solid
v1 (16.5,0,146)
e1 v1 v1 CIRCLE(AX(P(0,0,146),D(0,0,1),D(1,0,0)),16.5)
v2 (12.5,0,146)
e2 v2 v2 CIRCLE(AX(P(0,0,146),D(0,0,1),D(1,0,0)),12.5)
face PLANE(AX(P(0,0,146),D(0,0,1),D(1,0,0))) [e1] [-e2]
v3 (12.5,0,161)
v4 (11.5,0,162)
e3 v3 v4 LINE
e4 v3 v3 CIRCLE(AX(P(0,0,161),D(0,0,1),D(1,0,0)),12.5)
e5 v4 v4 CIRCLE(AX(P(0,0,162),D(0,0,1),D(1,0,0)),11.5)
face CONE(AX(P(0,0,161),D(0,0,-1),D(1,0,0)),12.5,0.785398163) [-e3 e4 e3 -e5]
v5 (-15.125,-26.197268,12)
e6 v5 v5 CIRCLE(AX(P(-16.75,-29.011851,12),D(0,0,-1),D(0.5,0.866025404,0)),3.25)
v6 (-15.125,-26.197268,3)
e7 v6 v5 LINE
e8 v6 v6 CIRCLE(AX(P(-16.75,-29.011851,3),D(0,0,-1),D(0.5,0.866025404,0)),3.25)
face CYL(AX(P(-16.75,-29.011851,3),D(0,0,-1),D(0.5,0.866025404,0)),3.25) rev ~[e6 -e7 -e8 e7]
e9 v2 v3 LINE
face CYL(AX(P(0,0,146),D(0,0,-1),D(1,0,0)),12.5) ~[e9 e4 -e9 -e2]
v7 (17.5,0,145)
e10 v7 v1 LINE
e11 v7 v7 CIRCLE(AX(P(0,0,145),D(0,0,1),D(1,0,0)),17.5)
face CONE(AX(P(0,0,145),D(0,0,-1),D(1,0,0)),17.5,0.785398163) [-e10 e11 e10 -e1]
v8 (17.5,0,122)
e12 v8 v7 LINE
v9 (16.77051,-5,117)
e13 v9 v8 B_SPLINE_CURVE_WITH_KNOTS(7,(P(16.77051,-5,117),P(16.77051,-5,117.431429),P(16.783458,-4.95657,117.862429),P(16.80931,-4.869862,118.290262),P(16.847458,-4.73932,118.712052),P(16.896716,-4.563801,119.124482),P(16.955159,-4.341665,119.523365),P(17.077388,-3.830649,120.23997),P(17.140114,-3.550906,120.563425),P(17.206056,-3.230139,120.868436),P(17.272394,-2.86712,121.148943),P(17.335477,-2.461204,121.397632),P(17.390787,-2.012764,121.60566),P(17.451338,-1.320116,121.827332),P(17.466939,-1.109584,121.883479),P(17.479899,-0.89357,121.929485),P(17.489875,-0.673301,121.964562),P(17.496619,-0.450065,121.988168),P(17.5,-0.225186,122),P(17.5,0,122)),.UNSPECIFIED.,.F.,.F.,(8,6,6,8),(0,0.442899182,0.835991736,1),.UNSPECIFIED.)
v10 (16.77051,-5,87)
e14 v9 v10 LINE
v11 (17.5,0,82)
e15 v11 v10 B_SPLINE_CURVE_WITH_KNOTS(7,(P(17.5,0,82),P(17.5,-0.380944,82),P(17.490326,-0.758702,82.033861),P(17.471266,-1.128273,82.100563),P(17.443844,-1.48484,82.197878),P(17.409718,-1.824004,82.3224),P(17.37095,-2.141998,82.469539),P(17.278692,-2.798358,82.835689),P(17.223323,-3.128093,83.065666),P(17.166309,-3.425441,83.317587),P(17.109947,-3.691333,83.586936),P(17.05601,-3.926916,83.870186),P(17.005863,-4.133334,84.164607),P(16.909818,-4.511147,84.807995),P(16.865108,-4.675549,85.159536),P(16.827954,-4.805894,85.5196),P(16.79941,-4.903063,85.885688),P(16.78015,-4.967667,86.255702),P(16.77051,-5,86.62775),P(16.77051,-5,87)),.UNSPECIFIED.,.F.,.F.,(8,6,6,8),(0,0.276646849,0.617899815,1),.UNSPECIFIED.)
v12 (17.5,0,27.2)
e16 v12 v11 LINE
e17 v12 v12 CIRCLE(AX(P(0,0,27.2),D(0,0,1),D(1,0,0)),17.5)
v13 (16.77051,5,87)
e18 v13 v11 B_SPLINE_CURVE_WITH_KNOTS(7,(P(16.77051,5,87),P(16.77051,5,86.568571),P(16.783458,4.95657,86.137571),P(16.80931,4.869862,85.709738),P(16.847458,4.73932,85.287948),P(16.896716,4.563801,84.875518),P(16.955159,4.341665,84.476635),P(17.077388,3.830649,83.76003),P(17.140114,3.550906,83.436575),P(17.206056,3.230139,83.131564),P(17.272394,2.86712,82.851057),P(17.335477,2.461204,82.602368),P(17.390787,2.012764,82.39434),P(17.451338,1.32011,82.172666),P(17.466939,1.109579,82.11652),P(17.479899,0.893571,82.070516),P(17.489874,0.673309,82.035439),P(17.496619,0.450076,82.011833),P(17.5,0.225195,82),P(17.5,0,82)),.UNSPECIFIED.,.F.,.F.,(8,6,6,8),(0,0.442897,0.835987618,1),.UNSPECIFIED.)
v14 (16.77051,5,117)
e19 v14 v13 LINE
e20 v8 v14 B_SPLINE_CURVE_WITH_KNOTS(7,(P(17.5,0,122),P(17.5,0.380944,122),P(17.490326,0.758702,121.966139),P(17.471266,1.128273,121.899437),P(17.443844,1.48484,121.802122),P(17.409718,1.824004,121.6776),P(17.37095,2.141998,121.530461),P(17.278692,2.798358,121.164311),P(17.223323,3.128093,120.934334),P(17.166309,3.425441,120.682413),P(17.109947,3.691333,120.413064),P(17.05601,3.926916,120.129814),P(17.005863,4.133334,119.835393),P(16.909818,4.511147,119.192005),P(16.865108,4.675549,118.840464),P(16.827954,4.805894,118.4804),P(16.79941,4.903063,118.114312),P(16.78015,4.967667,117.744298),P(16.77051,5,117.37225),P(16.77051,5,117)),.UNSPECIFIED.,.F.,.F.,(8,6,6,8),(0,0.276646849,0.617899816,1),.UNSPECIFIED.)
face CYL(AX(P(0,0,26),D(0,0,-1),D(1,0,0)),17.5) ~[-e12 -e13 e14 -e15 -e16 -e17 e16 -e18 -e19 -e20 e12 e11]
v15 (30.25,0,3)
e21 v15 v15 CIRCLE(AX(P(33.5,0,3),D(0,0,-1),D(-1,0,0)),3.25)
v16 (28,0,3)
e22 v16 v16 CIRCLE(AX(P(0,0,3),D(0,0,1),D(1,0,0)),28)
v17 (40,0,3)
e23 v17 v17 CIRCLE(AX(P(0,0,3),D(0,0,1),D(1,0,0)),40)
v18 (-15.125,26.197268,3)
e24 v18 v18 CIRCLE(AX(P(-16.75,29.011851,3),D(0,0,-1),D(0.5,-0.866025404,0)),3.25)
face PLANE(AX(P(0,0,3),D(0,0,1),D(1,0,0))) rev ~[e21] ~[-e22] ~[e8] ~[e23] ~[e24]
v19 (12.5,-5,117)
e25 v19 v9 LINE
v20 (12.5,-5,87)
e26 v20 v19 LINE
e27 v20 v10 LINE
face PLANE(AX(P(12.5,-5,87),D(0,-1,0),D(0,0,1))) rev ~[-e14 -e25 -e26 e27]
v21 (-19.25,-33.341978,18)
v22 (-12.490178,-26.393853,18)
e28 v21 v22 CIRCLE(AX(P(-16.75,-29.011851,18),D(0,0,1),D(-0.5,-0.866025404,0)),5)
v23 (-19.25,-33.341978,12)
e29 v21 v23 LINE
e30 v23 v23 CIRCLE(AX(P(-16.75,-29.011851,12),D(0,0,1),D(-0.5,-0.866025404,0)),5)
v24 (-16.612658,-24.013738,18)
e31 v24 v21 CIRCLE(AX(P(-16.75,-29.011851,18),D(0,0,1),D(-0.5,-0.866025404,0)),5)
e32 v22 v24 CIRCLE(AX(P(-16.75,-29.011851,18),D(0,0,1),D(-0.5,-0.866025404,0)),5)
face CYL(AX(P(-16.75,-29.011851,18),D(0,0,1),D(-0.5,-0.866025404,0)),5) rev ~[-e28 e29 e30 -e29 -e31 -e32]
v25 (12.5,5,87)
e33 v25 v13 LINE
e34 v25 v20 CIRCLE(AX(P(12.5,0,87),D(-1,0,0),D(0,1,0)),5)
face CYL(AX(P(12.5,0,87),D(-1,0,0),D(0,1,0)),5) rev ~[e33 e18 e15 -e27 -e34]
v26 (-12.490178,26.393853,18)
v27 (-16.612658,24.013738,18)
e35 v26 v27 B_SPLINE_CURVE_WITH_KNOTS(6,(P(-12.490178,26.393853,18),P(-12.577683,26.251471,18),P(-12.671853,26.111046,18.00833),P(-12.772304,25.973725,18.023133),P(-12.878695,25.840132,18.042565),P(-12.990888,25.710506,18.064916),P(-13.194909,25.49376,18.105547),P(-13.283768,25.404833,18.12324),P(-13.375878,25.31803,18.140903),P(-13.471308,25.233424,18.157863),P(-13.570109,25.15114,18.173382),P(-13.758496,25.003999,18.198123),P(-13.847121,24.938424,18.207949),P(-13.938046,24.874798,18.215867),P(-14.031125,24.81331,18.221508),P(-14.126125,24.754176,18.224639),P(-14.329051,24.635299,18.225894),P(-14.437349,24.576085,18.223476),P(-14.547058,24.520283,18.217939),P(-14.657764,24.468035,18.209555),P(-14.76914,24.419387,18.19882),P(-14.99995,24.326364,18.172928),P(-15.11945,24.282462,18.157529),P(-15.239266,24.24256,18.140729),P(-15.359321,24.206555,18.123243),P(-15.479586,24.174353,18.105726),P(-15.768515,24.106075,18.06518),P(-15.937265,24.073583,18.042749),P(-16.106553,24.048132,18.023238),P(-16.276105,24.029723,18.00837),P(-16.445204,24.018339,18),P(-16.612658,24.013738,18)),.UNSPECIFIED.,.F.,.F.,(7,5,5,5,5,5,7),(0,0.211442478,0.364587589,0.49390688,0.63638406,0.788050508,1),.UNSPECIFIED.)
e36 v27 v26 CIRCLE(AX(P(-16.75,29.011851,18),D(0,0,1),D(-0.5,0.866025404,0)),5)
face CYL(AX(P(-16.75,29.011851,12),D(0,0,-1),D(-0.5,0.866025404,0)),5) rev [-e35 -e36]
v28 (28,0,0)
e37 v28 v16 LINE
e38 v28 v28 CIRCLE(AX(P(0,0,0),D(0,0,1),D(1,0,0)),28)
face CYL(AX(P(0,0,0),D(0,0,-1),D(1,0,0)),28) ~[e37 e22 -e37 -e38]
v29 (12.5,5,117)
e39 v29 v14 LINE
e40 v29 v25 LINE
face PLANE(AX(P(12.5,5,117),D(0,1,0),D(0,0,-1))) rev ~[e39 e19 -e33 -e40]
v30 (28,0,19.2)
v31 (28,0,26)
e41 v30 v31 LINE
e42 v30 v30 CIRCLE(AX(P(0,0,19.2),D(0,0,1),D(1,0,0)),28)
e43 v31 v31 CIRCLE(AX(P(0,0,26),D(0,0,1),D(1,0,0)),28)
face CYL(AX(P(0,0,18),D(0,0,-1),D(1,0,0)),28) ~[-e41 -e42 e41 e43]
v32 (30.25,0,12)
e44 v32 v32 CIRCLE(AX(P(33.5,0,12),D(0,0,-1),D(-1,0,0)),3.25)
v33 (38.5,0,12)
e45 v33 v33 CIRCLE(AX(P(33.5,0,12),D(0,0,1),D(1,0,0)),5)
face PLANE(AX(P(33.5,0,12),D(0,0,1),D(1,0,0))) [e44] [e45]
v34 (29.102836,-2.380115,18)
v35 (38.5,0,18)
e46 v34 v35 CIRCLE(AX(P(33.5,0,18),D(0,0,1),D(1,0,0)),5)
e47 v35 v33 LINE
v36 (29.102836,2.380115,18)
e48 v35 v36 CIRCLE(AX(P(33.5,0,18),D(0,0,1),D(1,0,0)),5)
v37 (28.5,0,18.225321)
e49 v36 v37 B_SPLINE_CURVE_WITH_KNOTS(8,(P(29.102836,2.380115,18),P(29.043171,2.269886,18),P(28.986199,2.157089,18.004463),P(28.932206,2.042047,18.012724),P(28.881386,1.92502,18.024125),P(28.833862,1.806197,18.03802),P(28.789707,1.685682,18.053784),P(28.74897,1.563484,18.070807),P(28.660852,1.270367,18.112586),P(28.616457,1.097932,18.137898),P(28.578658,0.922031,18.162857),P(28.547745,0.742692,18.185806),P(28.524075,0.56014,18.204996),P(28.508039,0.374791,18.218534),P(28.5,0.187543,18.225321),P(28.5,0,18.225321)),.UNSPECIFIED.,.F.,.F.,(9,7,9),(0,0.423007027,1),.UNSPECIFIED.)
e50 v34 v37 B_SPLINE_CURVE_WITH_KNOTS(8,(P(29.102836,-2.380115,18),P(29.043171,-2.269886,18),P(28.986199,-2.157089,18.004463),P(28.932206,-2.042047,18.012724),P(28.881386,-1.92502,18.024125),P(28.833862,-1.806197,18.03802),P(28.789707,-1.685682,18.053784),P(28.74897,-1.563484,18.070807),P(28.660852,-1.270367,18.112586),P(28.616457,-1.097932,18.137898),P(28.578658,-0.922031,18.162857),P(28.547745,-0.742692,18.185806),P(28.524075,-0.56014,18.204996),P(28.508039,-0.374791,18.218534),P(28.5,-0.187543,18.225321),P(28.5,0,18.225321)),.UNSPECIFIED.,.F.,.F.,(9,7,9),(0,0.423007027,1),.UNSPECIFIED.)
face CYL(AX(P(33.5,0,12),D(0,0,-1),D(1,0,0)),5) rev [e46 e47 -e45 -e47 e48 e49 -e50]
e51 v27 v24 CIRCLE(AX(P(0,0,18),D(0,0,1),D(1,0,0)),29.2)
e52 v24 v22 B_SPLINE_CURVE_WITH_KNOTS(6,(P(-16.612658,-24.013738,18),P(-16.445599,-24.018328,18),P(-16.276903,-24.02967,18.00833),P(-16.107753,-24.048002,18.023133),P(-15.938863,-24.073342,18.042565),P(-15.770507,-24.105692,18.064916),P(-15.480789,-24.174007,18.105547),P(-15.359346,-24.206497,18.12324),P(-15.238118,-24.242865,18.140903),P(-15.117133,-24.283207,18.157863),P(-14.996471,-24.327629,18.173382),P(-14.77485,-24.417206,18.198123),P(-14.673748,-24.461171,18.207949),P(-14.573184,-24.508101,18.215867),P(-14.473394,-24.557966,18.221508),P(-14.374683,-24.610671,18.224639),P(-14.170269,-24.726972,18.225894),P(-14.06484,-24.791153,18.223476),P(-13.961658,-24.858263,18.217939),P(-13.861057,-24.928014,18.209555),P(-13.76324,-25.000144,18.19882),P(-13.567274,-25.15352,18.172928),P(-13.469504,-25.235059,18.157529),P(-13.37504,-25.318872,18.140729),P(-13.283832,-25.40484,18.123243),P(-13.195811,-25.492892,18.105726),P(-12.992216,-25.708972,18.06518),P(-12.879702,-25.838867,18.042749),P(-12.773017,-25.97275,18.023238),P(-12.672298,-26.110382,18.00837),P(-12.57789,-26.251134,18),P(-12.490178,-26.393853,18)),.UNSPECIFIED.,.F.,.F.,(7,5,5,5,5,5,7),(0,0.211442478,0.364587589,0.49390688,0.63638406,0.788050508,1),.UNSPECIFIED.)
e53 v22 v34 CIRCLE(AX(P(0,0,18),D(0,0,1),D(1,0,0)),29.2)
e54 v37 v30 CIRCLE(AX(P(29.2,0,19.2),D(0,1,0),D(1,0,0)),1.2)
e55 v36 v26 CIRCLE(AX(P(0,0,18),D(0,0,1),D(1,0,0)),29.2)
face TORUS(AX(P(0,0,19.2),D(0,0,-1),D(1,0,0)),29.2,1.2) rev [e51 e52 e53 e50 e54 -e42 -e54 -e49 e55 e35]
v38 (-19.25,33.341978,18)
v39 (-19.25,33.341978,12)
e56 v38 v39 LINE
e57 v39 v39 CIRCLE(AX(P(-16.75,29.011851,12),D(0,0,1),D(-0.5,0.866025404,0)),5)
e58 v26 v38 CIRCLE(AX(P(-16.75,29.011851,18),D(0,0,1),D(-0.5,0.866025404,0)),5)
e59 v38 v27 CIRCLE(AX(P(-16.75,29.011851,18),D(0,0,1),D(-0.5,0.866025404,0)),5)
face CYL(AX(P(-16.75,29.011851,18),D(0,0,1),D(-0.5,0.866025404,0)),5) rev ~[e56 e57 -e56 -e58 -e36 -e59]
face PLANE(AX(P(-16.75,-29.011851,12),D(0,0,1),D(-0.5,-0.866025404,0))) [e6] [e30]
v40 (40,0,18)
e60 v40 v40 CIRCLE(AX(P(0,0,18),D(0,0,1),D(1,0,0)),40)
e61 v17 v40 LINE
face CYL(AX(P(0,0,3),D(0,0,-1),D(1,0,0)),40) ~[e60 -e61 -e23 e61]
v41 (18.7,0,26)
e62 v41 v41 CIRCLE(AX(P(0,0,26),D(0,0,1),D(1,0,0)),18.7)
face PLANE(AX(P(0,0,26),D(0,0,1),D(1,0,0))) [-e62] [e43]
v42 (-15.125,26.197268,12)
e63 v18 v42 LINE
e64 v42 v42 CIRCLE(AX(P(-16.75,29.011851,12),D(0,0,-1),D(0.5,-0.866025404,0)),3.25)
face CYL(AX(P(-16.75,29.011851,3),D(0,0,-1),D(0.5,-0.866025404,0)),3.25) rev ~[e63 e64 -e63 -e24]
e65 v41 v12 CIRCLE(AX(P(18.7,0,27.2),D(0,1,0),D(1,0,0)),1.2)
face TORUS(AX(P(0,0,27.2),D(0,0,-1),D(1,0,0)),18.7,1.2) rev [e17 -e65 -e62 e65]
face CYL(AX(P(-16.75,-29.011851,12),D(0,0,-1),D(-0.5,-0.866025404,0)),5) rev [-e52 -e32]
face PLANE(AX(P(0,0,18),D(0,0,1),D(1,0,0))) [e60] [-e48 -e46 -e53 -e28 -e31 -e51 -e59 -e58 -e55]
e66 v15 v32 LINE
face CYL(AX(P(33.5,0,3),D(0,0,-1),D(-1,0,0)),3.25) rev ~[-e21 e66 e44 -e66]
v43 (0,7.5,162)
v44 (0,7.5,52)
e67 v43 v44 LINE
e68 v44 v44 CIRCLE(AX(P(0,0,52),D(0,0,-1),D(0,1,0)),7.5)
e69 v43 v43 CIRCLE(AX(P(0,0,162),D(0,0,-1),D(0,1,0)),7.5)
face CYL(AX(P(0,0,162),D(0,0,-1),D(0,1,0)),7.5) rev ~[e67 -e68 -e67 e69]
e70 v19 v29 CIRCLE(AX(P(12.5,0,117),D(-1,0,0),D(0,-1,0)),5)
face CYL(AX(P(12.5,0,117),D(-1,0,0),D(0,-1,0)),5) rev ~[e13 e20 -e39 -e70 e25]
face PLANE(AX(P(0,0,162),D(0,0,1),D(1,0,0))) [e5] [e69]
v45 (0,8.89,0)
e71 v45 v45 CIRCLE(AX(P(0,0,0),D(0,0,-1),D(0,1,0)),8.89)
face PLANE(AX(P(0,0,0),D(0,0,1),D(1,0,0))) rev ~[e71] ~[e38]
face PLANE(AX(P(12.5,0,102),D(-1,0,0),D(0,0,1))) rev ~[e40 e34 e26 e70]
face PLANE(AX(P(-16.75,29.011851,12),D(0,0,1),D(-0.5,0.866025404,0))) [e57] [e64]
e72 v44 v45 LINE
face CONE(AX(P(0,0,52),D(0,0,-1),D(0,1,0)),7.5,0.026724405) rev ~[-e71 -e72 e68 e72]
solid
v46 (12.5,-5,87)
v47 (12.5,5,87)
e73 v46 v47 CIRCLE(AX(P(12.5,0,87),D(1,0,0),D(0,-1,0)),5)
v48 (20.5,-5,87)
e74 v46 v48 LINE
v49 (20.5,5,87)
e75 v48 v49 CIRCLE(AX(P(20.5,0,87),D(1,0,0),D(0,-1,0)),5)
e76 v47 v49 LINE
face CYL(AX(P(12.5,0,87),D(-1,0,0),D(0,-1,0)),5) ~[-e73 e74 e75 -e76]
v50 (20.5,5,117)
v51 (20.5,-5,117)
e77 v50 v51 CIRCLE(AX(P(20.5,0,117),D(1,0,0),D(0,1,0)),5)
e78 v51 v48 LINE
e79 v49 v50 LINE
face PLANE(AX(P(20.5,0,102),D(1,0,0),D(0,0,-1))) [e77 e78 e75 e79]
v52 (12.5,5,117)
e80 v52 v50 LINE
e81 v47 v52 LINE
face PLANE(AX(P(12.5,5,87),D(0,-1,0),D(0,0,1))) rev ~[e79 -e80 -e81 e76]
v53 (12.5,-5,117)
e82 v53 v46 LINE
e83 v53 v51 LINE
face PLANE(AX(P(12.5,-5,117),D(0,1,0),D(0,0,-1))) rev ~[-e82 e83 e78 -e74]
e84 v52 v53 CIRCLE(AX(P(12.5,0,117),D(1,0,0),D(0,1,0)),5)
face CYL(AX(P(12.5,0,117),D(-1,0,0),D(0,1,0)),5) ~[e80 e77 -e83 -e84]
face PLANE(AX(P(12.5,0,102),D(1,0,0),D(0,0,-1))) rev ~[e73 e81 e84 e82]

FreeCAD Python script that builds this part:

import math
import FreeCAD as App
import Part
import Sketcher
from FreeCAD import Vector


def edges_at(feature, points):
    """Names of the edges that pass closest to the given points."""
    edges = feature.Shape.Edges
    near = lambda p: min(range(len(edges)), key=lambda i: edges[i].distToShape(Part.Vertex(*p))[0])
    return sorted({f"Edge{near(p) + 1}" for p in points})


def add_polygon(sketch, points):
    """Adds a closed chain of lines whose ends are joined by coincident constraints."""
    first, n = sketch.GeometryCount, len(points)
    for a, b in zip(points, points[1:] + points[:1]):
        sketch.addGeometry(Part.LineSegment(App.Vector(*a, 0), App.Vector(*b, 0)), False)
    for i in range(n):
        sketch.addConstraint(Sketcher.Constraint("Coincident", first + i, 2, first + (i + 1) % n, 1))

doc = App.newDocument("Part")
body = doc.addObject("PartDesign::Body", "Body")

sketch1 = body.newObject("Sketcher::SketchObject", "Sketch")
sketch1.AttachmentSupport = (doc.getObject("XY_Plane"), [""])
sketch1.MapMode = "FlatFace"
sketch1.addGeometry(Part.Circle(Vector(0, 0, 0), Vector(0, 0, 1), 28), False)
sketch1.addConstraint([
    Sketcher.Constraint("Coincident", 0, 3, -1, 1),
    Sketcher.Constraint("Diameter", 0, 56.0),
])
pad1 = body.newObject("PartDesign::Pad", "Pad")
pad1.Profile = sketch1
pad1.Length = 3

sketch2 = body.newObject("Sketcher::SketchObject", "Sketch001")
sketch2.AttachmentSupport = (doc.getObject("XY_Plane"), [""])
sketch2.MapMode = "FlatFace"
sketch2.AttachmentOffset = App.Placement(Vector(0, 0, 3), App.Rotation())
sketch2.addGeometry(Part.Circle(Vector(0, 0, 0), Vector(0, 0, 1), 40), False)
sketch2.addConstraint([
    Sketcher.Constraint("Coincident", 0, 3, -1, 1),
    Sketcher.Constraint("Diameter", 0, 80.0),
])
pad2 = body.newObject("PartDesign::Pad", "Pad001")
pad2.Profile = sketch2
pad2.Length = 15

sketch3 = body.newObject("Sketcher::SketchObject", "Sketch002")
sketch3.AttachmentSupport = (doc.getObject("XY_Plane"), [""])
sketch3.MapMode = "FlatFace"
sketch3.AttachmentOffset = App.Placement(Vector(0, 0, 18), App.Rotation())
sketch3.addGeometry(Part.Circle(Vector(0, 0, 0), Vector(0, 0, 1), 28), False)
sketch3.addConstraint([
    Sketcher.Constraint("Coincident", 0, 3, -1, 1),
    Sketcher.Constraint("Diameter", 0, 56.0),
])
pad3 = body.newObject("PartDesign::Pad", "Pad002")
pad3.Profile = sketch3
pad3.Length = 8

sketch4 = body.newObject("Sketcher::SketchObject", "Sketch003")
sketch4.AttachmentSupport = (doc.getObject("XY_Plane"), [""])
sketch4.MapMode = "FlatFace"
sketch4.AttachmentOffset = App.Placement(Vector(0, 0, 26), App.Rotation())
sketch4.addGeometry(Part.Circle(Vector(0, 0, 0), Vector(0, 0, 1), 17.5), False)
sketch4.addConstraint([
    Sketcher.Constraint("Coincident", 0, 3, -1, 1),
    Sketcher.Constraint("Diameter", 0, 35.0),
])
pad4 = body.newObject("PartDesign::Pad", "Pad003")
pad4.Profile = sketch4
pad4.Length = 120

sketch5 = body.newObject("Sketcher::SketchObject", "Sketch004")
sketch5.AttachmentSupport = (doc.getObject("XY_Plane"), [""])
sketch5.MapMode = "FlatFace"
sketch5.AttachmentOffset = App.Placement(Vector(0, 0, 146), App.Rotation())
sketch5.addGeometry(Part.Circle(Vector(0, 0, 0), Vector(0, 0, 1), 12.5), False)
sketch5.addConstraint([
    Sketcher.Constraint("Coincident", 0, 3, -1, 1),
    Sketcher.Constraint("Diameter", 0, 25.0),
])
pad5 = body.newObject("PartDesign::Pad", "Pad004")
pad5.Profile = sketch5
pad5.Length = 16
doc.recompute()

fillet = body.newObject("PartDesign::Fillet", "Fillet")
fillet.Base = (pad5, edges_at(pad5, [(-28, 0, 18), (-17.5, 0, 26)]))
fillet.Radius = 1.2
doc.recompute()

chamfer = body.newObject("PartDesign::Chamfer", "Chamfer")
chamfer.Base = (fillet, edges_at(fillet, [(-17.5, 0, 146), (-12.5, 0, 162)]))
chamfer.Size = 1

sketch6 = body.newObject("Sketcher::SketchObject", "Sketch005")
sketch6.AttachmentSupport = (doc.getObject("YZ_Plane"), [""])
sketch6.MapMode = "FlatFace"
sketch6.AttachmentOffset = App.Placement(Vector(0, 0, 12.5), App.Rotation())
sketch6.addGeometry([
    Part.LineSegment(Vector(5, 87, 0), Vector(5, 117, 0)),
    Part.ArcOfCircle(Part.Circle(Vector(0, 117, 0), Vector(0, 0, 1), 5), math.radians(0), math.radians(180)),
    Part.LineSegment(Vector(-5, 117, 0), Vector(-5, 87, 0)),
    Part.ArcOfCircle(Part.Circle(Vector(0, 87, 0), Vector(0, 0, 1), 5), math.radians(180), math.radians(360)),
], False)
sketch6.addConstraint([
    Sketcher.Constraint("Tangent", 0, 2, 1, 1),
    Sketcher.Constraint("Tangent", 1, 2, 2, 1),
    Sketcher.Constraint("Tangent", 2, 2, 3, 1),
    Sketcher.Constraint("Tangent", 3, 2, 0, 1),
    Sketcher.Constraint("Vertical", 0),
    Sketcher.Constraint("Vertical", 2),
    Sketcher.Constraint("PointOnObject", 1, 3, -2),
    Sketcher.Constraint("Radius", 1, 5.0),
    Sketcher.Constraint("DistanceY", 0, 1, 0, 2, 30.0),
    Sketcher.Constraint("DistanceY", -1, 1, 1, 3, 117.0),
])
pocket1 = body.newObject("PartDesign::Pocket", "Pocket")
pocket1.Profile = sketch6
pocket1.Length = 33.2
pocket1.Reversed = True

sketch7 = body.newObject("Sketcher::SketchObject", "Sketch006")
sketch7.AttachmentSupport = (doc.getObject("YZ_Plane"), [""])
sketch7.MapMode = "FlatFace"
add_polygon(sketch7, [(7.5, 162), (0, 162), (0, 0), (8.89, 0), (7.5, 52)])
sketch7.addConstraint([
    Sketcher.Constraint("Horizontal", 0),
    Sketcher.Constraint("Vertical", 1),
    Sketcher.Constraint("Horizontal", 2),
    Sketcher.Constraint("Vertical", 4),
    Sketcher.Constraint("Coincident", 1, 2, -1, 1),
    Sketcher.Constraint("DistanceY", 1, 2, 1, 1, 162.0),
    Sketcher.Constraint("DistanceY", 4, 1, 4, 2, 110.0),
    Sketcher.Constraint("DistanceX", 0, 2, 0, 1, 7.5),
    Sketcher.Constraint("DistanceX", 2, 1, 2, 2, 8.89),
])
groove = body.newObject("PartDesign::Groove", "Groove")
groove.Profile = sketch7
groove.ReferenceAxis = (sketch7, ["V_Axis"])
groove.Angle = 360

sketch8 = body.newObject("Sketcher::SketchObject", "Sketch007")
sketch8.AttachmentSupport = (doc.getObject("XY_Plane"), [""])
sketch8.MapMode = "FlatFace"
sketch8.AttachmentOffset = App.Placement(Vector(0, 0, 3), App.Rotation())
sketch8.addGeometry(Part.Circle(Vector(33.5, 0, 0), Vector(0, 0, 1), 3.25), False)
sketch8.addConstraint([
    Sketcher.Constraint("PointOnObject", 0, 3, -1),
    Sketcher.Constraint("Diameter", 0, 6.5),
    Sketcher.Constraint("DistanceX", -1, 1, 0, 3, 33.5),
])
pocket2 = body.newObject("PartDesign::Pocket", "Pocket001")
pocket2.Profile = sketch8
pocket2.Length = 33.2
pocket2.Reversed = True
doc.recompute()

polarpattern = body.newObject("PartDesign::PolarPattern", "PolarPattern")
polarpattern.Originals = [pocket2]
polarpattern.Axis = (doc.getObject("Z_Axis"), [""])
polarpattern.Angle = 360
polarpattern.Occurrences = 3
body.Tip = polarpattern

sketch9 = body.newObject("Sketcher::SketchObject", "Sketch008")
sketch9.AttachmentSupport = (doc.getObject("XY_Plane"), [""])
sketch9.MapMode = "FlatFace"
sketch9.AttachmentOffset = App.Placement(Vector(0, 0, 18), App.Rotation())
sketch9.addGeometry(Part.Circle(Vector(33.5, 0, 0), Vector(0, 0, 1), 5), False)
sketch9.addConstraint([
    Sketcher.Constraint("PointOnObject", 0, 3, -1),
    Sketcher.Constraint("Diameter", 0, 10.0),
    Sketcher.Constraint("DistanceX", -1, 1, 0, 3, 33.5),
])
pocket3 = body.newObject("PartDesign::Pocket", "Pocket002")
pocket3.Profile = sketch9
pocket3.Length = 6
doc.recompute()

polarpattern2 = body.newObject("PartDesign::PolarPattern", "PolarPattern001")
polarpattern2.Originals = [pocket3]
polarpattern2.Axis = (doc.getObject("Z_Axis"), [""])
polarpattern2.Angle = 360
polarpattern2.Occurrences = 3
body.Tip = polarpattern2

sketch10 = body.newObject("Sketcher::SketchObject", "Sketch009")
sketch10.AttachmentSupport = (doc.getObject("XY_Plane"), [""])
sketch10.MapMode = "FlatFace"
sketch10.AttachmentOffset = App.Placement(Vector(0, 0, 12), App.Rotation())
sketch10.addGeometry(Part.Circle(Vector(33.5, 0, 0), Vector(0, 0, 1), 5), False)
sketch10.addConstraint([
    Sketcher.Constraint("PointOnObject", 0, 3, -1),
    Sketcher.Constraint("Diameter", 0, 10.0),
    Sketcher.Constraint("DistanceX", -1, 1, 0, 3, 33.5),
])
pocket4 = body.newObject("PartDesign::Pocket", "Pocket003")
pocket4.Profile = sketch10
pocket4.Length = 23.5
pocket4.Reversed = True
doc.recompute()

polarpattern3 = body.newObject("PartDesign::PolarPattern", "PolarPattern002")
polarpattern3.Originals = [pocket4]
polarpattern3.Axis = (doc.getObject("Z_Axis"), [""])
polarpattern3.Angle = 360
polarpattern3.Occurrences = 3
body.Tip = polarpattern3
body2 = doc.addObject("PartDesign::Body", "Body001")

sketch11 = body2.newObject("Sketcher::SketchObject", "Sketch010")
sketch11.AttachmentSupport = (doc.getObject("YZ_Plane001"), [""])
sketch11.MapMode = "FlatFace"
sketch11.AttachmentOffset = App.Placement(Vector(0, 0, 12.5), App.Rotation())
sketch11.addGeometry([
    Part.LineSegment(Vector(-5, 117, 0), Vector(-5, 87, 0)),
    Part.ArcOfCircle(Part.Circle(Vector(0, 87, 0), Vector(0, 0, 1), 5), math.radians(180), math.radians(360)),
    Part.LineSegment(Vector(5, 87, 0), Vector(5, 117, 0)),
    Part.ArcOfCircle(Part.Circle(Vector(0, 117, 0), Vector(0, 0, 1), 5), math.radians(0), math.radians(180)),
], False)
sketch11.addConstraint([
    Sketcher.Constraint("Tangent", 0, 2, 1, 1),
    Sketcher.Constraint("Tangent", 1, 2, 2, 1),
    Sketcher.Constraint("Tangent", 2, 2, 3, 1),
    Sketcher.Constraint("Tangent", 3, 2, 0, 1),
    Sketcher.Constraint("Vertical", 0),
    Sketcher.Constraint("Vertical", 2),
    Sketcher.Constraint("PointOnObject", 1, 3, -2),
    Sketcher.Constraint("Radius", 1, 5.0),
    Sketcher.Constraint("DistanceY", 0, 2, 0, 1, 30.0),
    Sketcher.Constraint("DistanceY", -1, 1, 1, 3, 87.0),
])
pad6 = body2.newObject("PartDesign::Pad", "Pad005")
pad6.Profile = sketch11
pad6.Length = 8

doc.recompute()
